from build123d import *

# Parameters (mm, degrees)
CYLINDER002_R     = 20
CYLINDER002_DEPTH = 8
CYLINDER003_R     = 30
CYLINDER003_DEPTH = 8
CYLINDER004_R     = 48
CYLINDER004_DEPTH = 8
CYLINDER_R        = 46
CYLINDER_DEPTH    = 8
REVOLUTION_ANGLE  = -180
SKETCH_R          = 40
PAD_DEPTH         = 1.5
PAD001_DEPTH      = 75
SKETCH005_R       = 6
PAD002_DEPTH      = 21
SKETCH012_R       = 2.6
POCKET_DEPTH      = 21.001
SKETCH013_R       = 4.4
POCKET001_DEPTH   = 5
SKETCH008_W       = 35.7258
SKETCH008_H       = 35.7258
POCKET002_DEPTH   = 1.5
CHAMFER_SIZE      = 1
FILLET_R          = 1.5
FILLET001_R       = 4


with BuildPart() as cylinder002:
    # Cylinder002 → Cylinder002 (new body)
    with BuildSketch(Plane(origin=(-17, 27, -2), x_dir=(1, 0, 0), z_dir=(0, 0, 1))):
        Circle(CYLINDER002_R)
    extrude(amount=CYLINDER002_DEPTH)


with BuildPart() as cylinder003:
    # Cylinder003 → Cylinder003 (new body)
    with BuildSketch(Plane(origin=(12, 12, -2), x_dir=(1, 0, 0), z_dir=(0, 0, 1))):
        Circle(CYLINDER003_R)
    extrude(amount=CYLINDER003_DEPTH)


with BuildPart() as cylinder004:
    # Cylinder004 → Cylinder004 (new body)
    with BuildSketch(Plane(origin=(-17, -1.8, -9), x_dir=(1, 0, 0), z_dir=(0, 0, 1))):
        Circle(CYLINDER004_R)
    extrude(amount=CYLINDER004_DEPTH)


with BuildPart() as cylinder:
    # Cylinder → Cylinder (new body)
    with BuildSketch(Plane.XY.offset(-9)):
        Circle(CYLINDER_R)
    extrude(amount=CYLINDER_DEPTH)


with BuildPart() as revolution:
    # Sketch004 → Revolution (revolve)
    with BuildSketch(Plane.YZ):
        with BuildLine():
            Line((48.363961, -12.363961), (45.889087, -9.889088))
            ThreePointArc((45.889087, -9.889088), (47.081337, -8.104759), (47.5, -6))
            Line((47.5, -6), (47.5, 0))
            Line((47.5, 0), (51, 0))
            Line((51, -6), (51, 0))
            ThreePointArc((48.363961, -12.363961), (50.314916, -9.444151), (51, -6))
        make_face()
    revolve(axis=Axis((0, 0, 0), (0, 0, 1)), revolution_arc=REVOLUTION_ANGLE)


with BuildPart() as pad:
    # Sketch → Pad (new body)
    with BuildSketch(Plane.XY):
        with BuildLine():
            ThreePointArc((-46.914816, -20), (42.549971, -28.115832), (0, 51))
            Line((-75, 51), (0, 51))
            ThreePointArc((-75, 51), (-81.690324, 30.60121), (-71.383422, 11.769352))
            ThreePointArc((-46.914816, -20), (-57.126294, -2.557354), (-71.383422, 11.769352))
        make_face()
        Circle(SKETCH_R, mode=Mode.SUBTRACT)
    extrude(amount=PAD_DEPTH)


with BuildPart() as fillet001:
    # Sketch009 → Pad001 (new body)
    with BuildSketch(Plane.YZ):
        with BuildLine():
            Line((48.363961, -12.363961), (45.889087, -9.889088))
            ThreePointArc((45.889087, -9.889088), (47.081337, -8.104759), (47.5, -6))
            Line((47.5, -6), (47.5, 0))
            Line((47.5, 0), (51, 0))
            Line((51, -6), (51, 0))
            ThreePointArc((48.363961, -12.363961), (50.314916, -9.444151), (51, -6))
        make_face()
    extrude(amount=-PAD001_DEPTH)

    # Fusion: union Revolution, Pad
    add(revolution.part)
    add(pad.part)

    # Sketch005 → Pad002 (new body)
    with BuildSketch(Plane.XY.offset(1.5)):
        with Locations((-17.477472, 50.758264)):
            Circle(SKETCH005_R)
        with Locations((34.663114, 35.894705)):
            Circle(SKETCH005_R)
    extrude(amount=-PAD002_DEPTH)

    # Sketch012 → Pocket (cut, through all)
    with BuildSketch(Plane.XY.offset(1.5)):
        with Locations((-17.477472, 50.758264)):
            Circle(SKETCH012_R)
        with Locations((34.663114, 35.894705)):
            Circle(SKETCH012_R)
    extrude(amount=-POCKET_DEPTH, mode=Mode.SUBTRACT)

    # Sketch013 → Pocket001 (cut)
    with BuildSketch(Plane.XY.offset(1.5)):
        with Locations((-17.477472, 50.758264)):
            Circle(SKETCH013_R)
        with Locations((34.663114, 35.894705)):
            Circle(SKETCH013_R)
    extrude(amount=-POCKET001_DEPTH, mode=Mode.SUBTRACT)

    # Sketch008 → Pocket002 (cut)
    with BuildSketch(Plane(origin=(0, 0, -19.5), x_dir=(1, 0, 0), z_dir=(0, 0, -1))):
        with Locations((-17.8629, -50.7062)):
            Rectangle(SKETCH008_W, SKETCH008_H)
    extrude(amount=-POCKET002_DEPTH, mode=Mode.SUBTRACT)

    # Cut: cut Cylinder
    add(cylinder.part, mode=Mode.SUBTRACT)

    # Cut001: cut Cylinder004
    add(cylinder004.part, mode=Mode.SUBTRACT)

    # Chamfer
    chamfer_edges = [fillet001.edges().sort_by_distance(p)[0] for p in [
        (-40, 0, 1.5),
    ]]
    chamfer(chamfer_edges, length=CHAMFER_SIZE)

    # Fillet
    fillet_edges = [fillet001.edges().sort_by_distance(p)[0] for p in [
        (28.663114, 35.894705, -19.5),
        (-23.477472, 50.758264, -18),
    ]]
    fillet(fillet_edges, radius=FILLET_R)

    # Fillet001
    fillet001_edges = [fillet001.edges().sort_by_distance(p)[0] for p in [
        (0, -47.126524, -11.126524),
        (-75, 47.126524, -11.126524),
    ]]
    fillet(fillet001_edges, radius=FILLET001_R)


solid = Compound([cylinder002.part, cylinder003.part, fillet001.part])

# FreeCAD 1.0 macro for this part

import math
import FreeCAD as App
import Part
import Sketcher

V = App.Vector
Q = App.Units.Quantity


def edges_at(feature, points):
    """Names of the edges that pass closest to the given points."""
    edges = feature.Shape.Edges
    near = lambda p: min(range(len(edges)), key=lambda i: edges[i].distToShape(Part.Vertex(*p))[0])
    return sorted({f"Edge{near(p) + 1}" for p in points})


def add_polygon(sketch, points):
    """Adds a closed chain of lines whose ends are joined by coincident constraints."""
    first, n = sketch.GeometryCount, len(points)
    for a, b in zip(points, points[1:] + points[:1]):
        sketch.addGeometry(Part.LineSegment(App.Vector(*a, 0), App.Vector(*b, 0)), False)
    for i in range(n):
        sketch.addConstraint(Sketcher.Constraint("Coincident", first + i, 2, first + (i + 1) % n, 1))

doc = App.newDocument("Part")
body = doc.addObject("PartDesign::Body", "Body")

# Sketch on XY plane
sketch1 = body.newObject("Sketcher::SketchObject", "Sketch")
sketch1.AttachmentSupport = (doc.getObject("XY_Plane"), [""])
sketch1.MapMode = "FlatFace"
sketch1.AttachmentOffset = App.Placement(V(0, 0, -2), App.Rotation())
sketch1.addGeometry(Part.Circle(V(-17, 27, 0), V(0, 0, 1), 20), False)
sketch1.addConstraint([
    Sketcher.Constraint("Diameter", 0, Q("40 mm")),
    Sketcher.Constraint("DistanceX", 0, 3, -1, 1, Q("17 mm")),
    Sketcher.Constraint("DistanceY", -1, 1, 0, 3, Q("27 mm")),
])
pad1 = body.newObject("PartDesign::Pad", "Pad")
pad1.Profile = sketch1
pad1.Length = 8
body2 = doc.addObject("PartDesign::Body", "Body001")

# Sketch on XY plane
sketch2 = body2.newObject("Sketcher::SketchObject", "Sketch001")
sketch2.AttachmentSupport = (doc.getObject("XY_Plane001"), [""])
sketch2.MapMode = "FlatFace"
sketch2.AttachmentOffset = App.Placement(V(0, 0, -2), App.Rotation())
sketch2.addGeometry(Part.Circle(V(12, 12, 0), V(0, 0, 1), 30), False)
sketch2.addConstraint([
    Sketcher.Constraint("Diameter", 0, Q("60 mm")),
    Sketcher.Constraint("DistanceX", -1, 1, 0, 3, Q("12 mm")),
    Sketcher.Constraint("DistanceY", -1, 1, 0, 3, Q("12 mm")),
])
pad2 = body2.newObject("PartDesign::Pad", "Pad001")
pad2.Profile = sketch2
pad2.Length = 8
body3 = doc.addObject("PartDesign::Body", "Body002")

# Sketch on XY plane
sketch3 = body3.newObject("Sketcher::SketchObject", "Sketch002")
sketch3.AttachmentSupport = (doc.getObject("XY_Plane002"), [""])
sketch3.MapMode = "FlatFace"
sketch3.AttachmentOffset = App.Placement(V(0, 0, -9), App.Rotation())
sketch3.addGeometry(Part.Circle(V(-17, -1.8, 0), V(0, 0, 1), 48), False)
sketch3.addConstraint([
    Sketcher.Constraint("Diameter", 0, Q("96 mm")),
    Sketcher.Constraint("DistanceX", 0, 3, -1, 1, Q("17 mm")),
    Sketcher.Constraint("DistanceY", 0, 3, -1, 1, Q("1.8 mm")),
])
pad3 = body3.newObject("PartDesign::Pad", "Pad002")
pad3.Profile = sketch3
pad3.Length = 8
body4 = doc.addObject("PartDesign::Body", "Body003")

# Sketch on XY plane
sketch4 = body4.newObject("Sketcher::SketchObject", "Sketch003")
sketch4.AttachmentSupport = (doc.getObject("XY_Plane003"), [""])
sketch4.MapMode = "FlatFace"
sketch4.AttachmentOffset = App.Placement(V(0, 0, -9), App.Rotation())
sketch4.addGeometry(Part.Circle(V(0, 0, 0), V(0, 0, 1), 46), False)
sketch4.addConstraint([
    Sketcher.Constraint("Coincident", 0, 3, -1, 1),
    Sketcher.Constraint("Diameter", 0, Q("92 mm")),
])
pad4 = body4.newObject("PartDesign::Pad", "Pad003")
pad4.Profile = sketch4
pad4.Length = 8
body5 = doc.addObject("PartDesign::Body", "Body004")

# Sketch on YZ plane
sketch5 = body5.newObject("Sketcher::SketchObject", "Sketch004")
sketch5.AttachmentSupport = (doc.getObject("YZ_Plane004"), [""])
sketch5.MapMode = "FlatFace"
sketch5.addGeometry([
    Part.LineSegment(V(45.889087, -9.889088, 0), V(48.363961, -12.363961, 0)),  # 0
    Part.ArcOfCircle(Part.Circle(V(42.000003, -6.000001, 0), V(0, 0, 1), 8.999997), math.radians(-45.000008), math.radians(0.000008)),  # 1
    Part.LineSegment(V(51, -6, 0), V(51, 0, 0)),  # 2
    Part.LineSegment(V(51, 0, 0), V(47.5, 0, 0)),  # 3
    Part.LineSegment(V(47.5, 0, 0), V(47.5, -6, 0)),  # 4
    Part.ArcOfCircle(Part.Circle(V(41.999994, -5.999998, 0), V(0, 0, 1), 5.500006), math.radians(-44.999978), math.radians(-0.000022)),  # 5
], False)
sketch5.addConstraint([
    Sketcher.Constraint("Coincident", 0, 2, 1, 1),
    Sketcher.Constraint("Tangent", 1, 2, 2, 1),
    Sketcher.Constraint("Coincident", 2, 2, 3, 1),
    Sketcher.Constraint("Coincident", 3, 2, 4, 1),
    Sketcher.Constraint("Tangent", 4, 2, 5, 2),
    Sketcher.Constraint("Coincident", 5, 1, 0, 1),
    Sketcher.Constraint("Vertical", 2),
    Sketcher.Constraint("Horizontal", 3),
    Sketcher.Constraint("Vertical", 4),
    Sketcher.Constraint("Coincident", 5, 3, 1, 3),
    Sketcher.Constraint("PointOnObject", 2, 2, -1),
    Sketcher.Constraint("DistanceY", 2, 1, 2, 2, Q("6 mm")),
    Sketcher.Constraint("Angle", 0, Q("-44.999988 deg")),
    Sketcher.Constraint("DistanceX", 3, 2, 3, 1, Q("3.5 mm")),
    Sketcher.Constraint("DistanceX", -1, 1, 1, 2, Q("51 mm")),
    Sketcher.Constraint("Radius", 1, Q("8.999997 mm")),
    Sketcher.Constraint("DistanceX", -1, 1, 0, 2, Q("48.363961 mm")),
])
revolution = body5.newObject("PartDesign::Revolution", "Revolution")
revolution.Profile = sketch5
revolution.ReferenceAxis = (sketch5, ["V_Axis"])
revolution.Angle = 180
revolution.Reversed = True
body6 = doc.addObject("PartDesign::Body", "Body005")

# Sketch on XY plane
sketch6 = body6.newObject("Sketcher::SketchObject", "Sketch005")
sketch6.AttachmentSupport = (doc.getObject("XY_Plane005"), [""])
sketch6.MapMode = "FlatFace"
sketch6.addGeometry([
    Part.ArcOfCircle(Part.Circle(V(0, 0, 0), V(0, 0, 1), 51), math.radians(-156.911228), math.radians(90.000001)),  # 0
    Part.LineSegment(V(0, 51, 0), V(-75, 51, 0)),  # 1
    Part.ArcOfCircle(Part.Circle(V(-54.804327, 33.079764, 0), V(0, 0, 1), 27.000001), math.radians(138.416379), math.radians(232.117764)),  # 2
    Part.ArcOfCircle(Part.Circle(V(-120.506659, -51.372614, 0), V(0, 0, 1), 80.000001), math.radians(23.088822), math.radians(52.117769)),  # 3
    Part.Circle(V(0, 0, 0), V(0, 0, 1), 40),  # 4
], False)
sketch6.addConstraint([
    Sketcher.Constraint("Coincident", 0, 2, 1, 1),
    Sketcher.Constraint("Coincident", 1, 2, 2, 1),
    Sketcher.Constraint("Coincident", 2, 2, 3, 2),
    Sketcher.Constraint("Coincident", 3, 1, 0, 1),
    Sketcher.Constraint("Horizontal", 1),
    Sketcher.Constraint("Coincident", 0, 3, -1, 1),
    Sketcher.Constraint("Coincident", 4, 3, -1, 1),
    Sketcher.Constraint("PointOnObject", 0, 2, -2),
    Sketcher.Constraint("Diameter", 4, Q("80 mm")),
    Sketcher.Constraint("Radius", 0, Q("51 mm")),
    Sketcher.Constraint("Radius", 2, Q("27.000001 mm")),
    Sketcher.Constraint("Radius", 3, Q("80.000001 mm")),
    Sketcher.Constraint("DistanceX", 1, 2, 1, 1, Q("75 mm")),
    Sketcher.Constraint("DistanceY", 3, 1, -1, 1, Q("20 mm")),
    Sketcher.Constraint("DistanceX", 3, 3, -1, 1, Q("120.506659 mm")),
    Sketcher.Constraint("DistanceX", 2, 2, -1, 1, Q("71.383422 mm")),
])
pad5 = body6.newObject("PartDesign::Pad", "Pad004")
pad5.Profile = sketch6
pad5.Length = 1.5
body7 = doc.addObject("PartDesign::Body", "Body006")

# Sketch on YZ plane
sketch7 = body7.newObject("Sketcher::SketchObject", "Sketch006")
sketch7.AttachmentSupport = (doc.getObject("YZ_Plane006"), [""])
sketch7.MapMode = "FlatFace"
sketch7.addGeometry([
    Part.LineSegment(V(45.889087, -9.889088, 0), V(48.363961, -12.363961, 0)),  # 0
    Part.ArcOfCircle(Part.Circle(V(42.000003, -6.000001, 0), V(0, 0, 1), 8.999997), math.radians(-45.000008), math.radians(0.000008)),  # 1
    Part.LineSegment(V(51, -6, 0), V(51, 0, 0)),  # 2
    Part.LineSegment(V(51, 0, 0), V(47.5, 0, 0)),  # 3
    Part.LineSegment(V(47.5, 0, 0), V(47.5, -6, 0)),  # 4
    Part.ArcOfCircle(Part.Circle(V(41.999994, -5.999998, 0), V(0, 0, 1), 5.500006), math.radians(-44.999978), math.radians(-0.000022)),  # 5
], False)
sketch7.addConstraint([
    Sketcher.Constraint("Coincident", 0, 2, 1, 1),
    Sketcher.Constraint("Tangent", 1, 2, 2, 1),
    Sketcher.Constraint("Coincident", 2, 2, 3, 1),
    Sketcher.Constraint("Coincident", 3, 2, 4, 1),
    Sketcher.Constraint("Tangent", 4, 2, 5, 2),
    Sketcher.Constraint("Coincident", 5, 1, 0, 1),
    Sketcher.Constraint("Vertical", 2),
    Sketcher.Constraint("Horizontal", 3),
    Sketcher.Constraint("Vertical", 4),
    Sketcher.Constraint("Coincident", 5, 3, 1, 3),
    Sketcher.Constraint("PointOnObject", 2, 2, -1),
    Sketcher.Constraint("DistanceY", 2, 1, 2, 2, Q("6 mm")),
    Sketcher.Constraint("Angle", 0, Q("-44.999988 deg")),
    Sketcher.Constraint("DistanceX", 3, 2, 3, 1, Q("3.5 mm")),
    Sketcher.Constraint("DistanceX", -1, 1, 1, 2, Q("51 mm")),
    Sketcher.Constraint("Radius", 1, Q("8.999997 mm")),
    Sketcher.Constraint("DistanceX", -1, 1, 0, 2, Q("48.363961 mm")),
])
pad6 = body7.newObject("PartDesign::Pad", "Pad005")
pad6.Profile = sketch7
pad6.Length = 75
pad6.Reversed = True
doc.recompute()

boolean = body7.newObject("PartDesign::Boolean", "Boolean")
boolean.Type = "Fuse"
boolean.addObjects([body5])
doc.recompute()

boolean2 = body7.newObject("PartDesign::Boolean", "Boolean001")
boolean2.Type = "Fuse"
boolean2.addObjects([body6])

# Sketch on XY plane
sketch8 = body7.newObject("Sketcher::SketchObject", "Sketch007")
sketch8.AttachmentSupport = (doc.getObject("XY_Plane006"), [""])
sketch8.MapMode = "FlatFace"
sketch8.AttachmentOffset = App.Placement(V(0, 0, 1.5), App.Rotation())
sketch8.addGeometry([
    Part.Circle(V(-17.477472, 50.758264, 0), V(0, 0, 1), 6),
    Part.Circle(V(34.663114, 35.894705, 0), V(0, 0, 1), 6),
], False)
sketch8.addConstraint([
    Sketcher.Constraint("Equal", 0, 1),
    Sketcher.Constraint("Diameter", 0, Q("12 mm")),
    Sketcher.Constraint("DistanceX", 0, 3, -1, 1, Q("17.477472 mm")),
    Sketcher.Constraint("DistanceY", 1, 3, 0, 3, Q("14.863559 mm")),
    Sketcher.Constraint("DistanceY", -1, 1, 0, 3, Q("50.758264 mm")),
    Sketcher.Constraint("DistanceX", -1, 1, 1, 3, Q("34.663114 mm")),
])
pad7 = body7.newObject("PartDesign::Pad", "Pad006")
pad7.Profile = sketch8
pad7.Length = 21
pad7.Reversed = True

# Sketch on XY plane
sketch9 = body7.newObject("Sketcher::SketchObject", "Sketch008")
sketch9.AttachmentSupport = (doc.getObject("XY_Plane006"), [""])
sketch9.MapMode = "FlatFace"
sketch9.AttachmentOffset = App.Placement(V(0, 0, 1.5), App.Rotation())
sketch9.addGeometry([
    Part.Circle(V(-17.477472, 50.758264, 0), V(0, 0, 1), 2.6),
    Part.Circle(V(34.663114, 35.894705, 0), V(0, 0, 1), 2.6),
], False)
sketch9.addConstraint([
    Sketcher.Constraint("Equal", 0, 1),
    Sketcher.Constraint("Diameter", 0, Q("5.2 mm")),
    Sketcher.Constraint("DistanceX", 0, 3, -1, 1, Q("17.477472 mm")),
    Sketcher.Constraint("DistanceY", 1, 3, 0, 3, Q("14.863559 mm")),
    Sketcher.Constraint("DistanceY", -1, 1, 0, 3, Q("50.758264 mm")),
    Sketcher.Constraint("DistanceX", -1, 1, 1, 3, Q("34.663114 mm")),
])
pocket1 = body7.newObject("PartDesign::Pocket", "Pocket")
pocket1.Profile = sketch9
pocket1.Type = "ThroughAll"

# Sketch on XY plane
sketch10 = body7.newObject("Sketcher::SketchObject", "Sketch009")
sketch10.AttachmentSupport = (doc.getObject("XY_Plane006"), [""])
sketch10.MapMode = "FlatFace"
sketch10.AttachmentOffset = App.Placement(V(0, 0, 1.5), App.Rotation())
sketch10.addGeometry([
    Part.Circle(V(-17.477472, 50.758264, 0), V(0, 0, 1), 4.4),
    Part.Circle(V(34.663114, 35.894705, 0), V(0, 0, 1), 4.4),
], False)
sketch10.addConstraint([
    Sketcher.Constraint("Equal", 0, 1),
    Sketcher.Constraint("Diameter", 0, Q("8.8 mm")),
    Sketcher.Constraint("DistanceX", 0, 3, -1, 1, Q("17.477472 mm")),
    Sketcher.Constraint("DistanceY", 1, 3, 0, 3, Q("14.863559 mm")),
    Sketcher.Constraint("DistanceY", -1, 1, 0, 3, Q("50.758264 mm")),
    Sketcher.Constraint("DistanceX", -1, 1, 1, 3, Q("34.663114 mm")),
])
pocket2 = body7.newObject("PartDesign::Pocket", "Pocket001")
pocket2.Profile = sketch10
pocket2.Length = 5

# Sketch on XY plane
sketch11 = body7.newObject("Sketcher::SketchObject", "Sketch010")
sketch11.AttachmentSupport = (doc.getObject("XY_Plane006"), [""])
sketch11.MapMode = "FlatFace"
sketch11.AttachmentOffset = App.Placement(V(0, 0, -19.5), App.Rotation())
add_polygon(sketch11, [(-35.7258, 32.8433), (-35.7258, 68.5691), (0, 68.5691), (0, 32.8433)])  # lines 0-3
sketch11.addConstraint([
    Sketcher.Constraint("Vertical", 0),
    Sketcher.Constraint("Horizontal", 1),
    Sketcher.Constraint("Vertical", 2),
    Sketcher.Constraint("Horizontal", 3),
    Sketcher.Constraint("PointOnObject", 1, 2, -2),
    Sketcher.Constraint("Equal", 3, 0),
    Sketcher.Constraint("DistanceX", 1, 1, 1, 2, Q("35.7258 mm")),
    Sketcher.Constraint("DistanceY", -1, 1, 0, 2, Q("68.5691 mm")),
])
pocket3 = body7.newObject("PartDesign::Pocket", "Pocket002")
pocket3.Profile = sketch11
pocket3.Length = 1.5
pocket3.Reversed = True
doc.recompute()

boolean3 = body7.newObject("PartDesign::Boolean", "Boolean002")
boolean3.Type = "Cut"
boolean3.addObjects([body4])
doc.recompute()

boolean4 = body7.newObject("PartDesign::Boolean", "Boolean003")
boolean4.Type = "Cut"
boolean4.addObjects([body3])
doc.recompute()

chamfer = body7.newObject("PartDesign::Chamfer", "Chamfer")
chamfer.Base = (boolean4, edges_at(boolean4, [(-40, 0, 1.5)]))
chamfer.Size = 1
doc.recompute()

fillet = body7.newObject("PartDesign::Fillet", "Fillet")
fillet.Base = (chamfer, edges_at(chamfer, [(28.663, 35.895, -19.5), (-23.477, 50.758, -18)]))
fillet.Radius = 1.5
doc.recompute()

fillet2 = body7.newObject("PartDesign::Fillet", "Fillet001")
fillet2.Base = (fillet, edges_at(fillet, [(0, -47.127, -11.127), (-75, 47.127, -11.127)]))
fillet2.Radius = 4

doc.recompute()
